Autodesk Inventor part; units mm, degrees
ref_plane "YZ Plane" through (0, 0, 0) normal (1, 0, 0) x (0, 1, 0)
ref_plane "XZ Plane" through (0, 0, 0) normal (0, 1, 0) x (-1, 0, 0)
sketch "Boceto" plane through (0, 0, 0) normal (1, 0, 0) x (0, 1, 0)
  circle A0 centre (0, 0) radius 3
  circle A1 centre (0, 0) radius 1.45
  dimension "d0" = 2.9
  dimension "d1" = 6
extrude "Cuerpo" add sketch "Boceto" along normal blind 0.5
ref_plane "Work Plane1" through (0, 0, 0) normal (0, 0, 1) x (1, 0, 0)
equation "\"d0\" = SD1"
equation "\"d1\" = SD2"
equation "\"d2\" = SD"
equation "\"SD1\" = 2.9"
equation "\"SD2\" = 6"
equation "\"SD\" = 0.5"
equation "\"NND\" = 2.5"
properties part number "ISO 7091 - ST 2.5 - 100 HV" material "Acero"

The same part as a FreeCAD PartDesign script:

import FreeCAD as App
import Part
import Sketcher
from FreeCAD import Vector
Q = App.Units.Quantity

doc = App.newDocument("Part")
params = doc.addObject("Spreadsheet::Sheet", "Params")
for row, (alias, value) in enumerate([
    ("sketch1_diameter", "6 mm"),
    ("sketch1_diameter2", "2.9 mm"),
    ("pad1_length", "0.5 mm"),
], start=1):
    params.set(f"A{row}", alias)
    params.set(f"B{row}", "=" + value)
    params.setAlias(f"B{row}", alias)

body = doc.addObject("PartDesign::Body", "Body")

# Sketch on YZ plane
sketch1 = doc.addObject("Sketcher::SketchObject", "Sketch")
body.addObject(sketch1)
sketch1.AttachmentSupport = (doc.YZ_Plane, [""])
sketch1.MapMode = "FlatFace"
sketch1.addGeometry([
    Part.Circle(Vector(0, 0, 0), Vector(0, 0, 1), 3),
    Part.Circle(Vector(0, 0, 0), Vector(0, 0, 1), 1.45),
], False)
sketch1.addConstraint([
    Sketcher.Constraint("Coincident", 0, 3, -1, 1),
    Sketcher.Constraint("Coincident", 1, 3, -1, 1),
    Sketcher.Constraint("Diameter", 0, Q("6 mm")),
    Sketcher.Constraint("Diameter", 1, Q("2.9 mm")),
])
sketch1.setExpression("Constraints[2]", "Params.sketch1_diameter")
sketch1.setExpression("Constraints[3]", "Params.sketch1_diameter2")
pad1 = doc.addObject("PartDesign::Pad", "Pad")
body.addObject(pad1)
pad1.Profile = sketch1
pad1.setExpression("Length", "Params.pad1_length")

doc.recompute()
